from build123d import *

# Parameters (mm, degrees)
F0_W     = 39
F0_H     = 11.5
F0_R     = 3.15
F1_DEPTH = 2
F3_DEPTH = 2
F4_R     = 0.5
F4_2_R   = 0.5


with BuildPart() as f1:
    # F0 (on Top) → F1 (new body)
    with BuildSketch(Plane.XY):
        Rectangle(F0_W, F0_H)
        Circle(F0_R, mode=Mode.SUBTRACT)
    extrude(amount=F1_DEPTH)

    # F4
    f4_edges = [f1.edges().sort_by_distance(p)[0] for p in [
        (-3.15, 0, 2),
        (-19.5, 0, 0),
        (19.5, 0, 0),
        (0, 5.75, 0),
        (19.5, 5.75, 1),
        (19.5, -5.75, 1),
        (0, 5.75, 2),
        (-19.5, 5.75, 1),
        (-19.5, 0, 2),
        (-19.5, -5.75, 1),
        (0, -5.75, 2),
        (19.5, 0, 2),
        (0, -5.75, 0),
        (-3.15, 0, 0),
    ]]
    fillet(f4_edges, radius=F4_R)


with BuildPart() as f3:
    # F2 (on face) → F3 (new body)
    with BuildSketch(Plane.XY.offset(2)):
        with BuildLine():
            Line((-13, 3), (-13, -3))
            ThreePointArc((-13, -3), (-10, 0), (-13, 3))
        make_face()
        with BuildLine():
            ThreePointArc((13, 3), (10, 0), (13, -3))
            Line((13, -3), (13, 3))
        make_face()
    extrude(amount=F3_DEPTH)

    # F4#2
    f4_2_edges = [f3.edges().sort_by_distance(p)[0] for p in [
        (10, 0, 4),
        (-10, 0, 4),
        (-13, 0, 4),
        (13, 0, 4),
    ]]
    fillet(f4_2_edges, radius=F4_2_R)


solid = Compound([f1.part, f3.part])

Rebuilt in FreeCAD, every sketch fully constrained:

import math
import FreeCAD as App
import Part
import Sketcher

V = App.Vector


def edges_at(feature, points):
    """Names of the edges that pass closest to the given points."""
    edges = feature.Shape.Edges
    near = lambda p: min(range(len(edges)), key=lambda i: edges[i].distToShape(Part.Vertex(*p))[0])
    return sorted({f"Edge{near(p) + 1}" for p in points})

doc = App.newDocument("Part")
body = doc.addObject("PartDesign::Body", "Body")

sketch1 = doc.addObject("Sketcher::SketchObject", "Sketch")
body.addObject(sketch1)
sketch1.AttachmentSupport = (doc.XY_Plane, [""])
sketch1.MapMode = "FlatFace"
sketch1.addGeometry([
    Part.LineSegment(V(-19.5, 5.8, 0), V(-19.5, -5.8, 0)),
    Part.LineSegment(V(-19.5, -5.8, 0), V(19.5, -5.8, 0)),
    Part.LineSegment(V(19.5, -5.8, 0), V(19.5, 5.8, 0)),
    Part.LineSegment(V(19.5, 5.8, 0), V(-19.5, 5.8, 0)),
    Part.Circle(V(0, 0, 0), V(0, 0, 1), 3.1),
], False)
sketch1.addConstraint([
    Sketcher.Constraint("Coincident", 0, 2, 1, 1),
    Sketcher.Constraint("Coincident", 1, 2, 2, 1),
    Sketcher.Constraint("Coincident", 2, 2, 3, 1),
    Sketcher.Constraint("Coincident", 3, 2, 0, 1),
    Sketcher.Constraint("Vertical", 0),
    Sketcher.Constraint("Horizontal", 1),
    Sketcher.Constraint("Vertical", 2),
    Sketcher.Constraint("Horizontal", 3),
    Sketcher.Constraint("Coincident", 4, 3, -1, 1),
    Sketcher.Constraint("Symmetric", 0, 2, 2, 2, -1, 1),
    Sketcher.Constraint("Diameter", 4, 6.3),
    Sketcher.Constraint("DistanceX", 1, 1, 1, 2, 39.0),
    Sketcher.Constraint("DistanceY", 0, 2, 0, 1, 11.5),
])
pad1 = doc.addObject("PartDesign::Pad", "Pad")
body.addObject(pad1)
pad1.Profile = sketch1
pad1.Length = 2
doc.recompute()

fillet = doc.addObject("PartDesign::Fillet", "Fillet")
body.addObject(fillet)
fillet.Base = (pad1, ["Edge1"])
fillet.UseAllEdges = True
fillet.Radius = 0.5
body2 = doc.addObject("PartDesign::Body", "Body001")
body2.AllowCompound = True

sketch2 = doc.addObject("Sketcher::SketchObject", "Sketch001")
body2.addObject(sketch2)
sketch2.AttachmentSupport = (doc.getObject("XY_Plane001"), [""])
sketch2.MapMode = "FlatFace"
sketch2.AttachmentOffset = App.Placement(V(0, 0, 2), App.Rotation())
sketch2.addGeometry([
    Part.LineSegment(V(-13, 3, 0), V(-13, -3, 0)),
    Part.ArcOfCircle(Part.Circle(V(-13, 0, 0), V(0, 0, 1), 3), math.radians(-90), math.radians(90)),
    Part.ArcOfCircle(Part.Circle(V(13, 0, 0), V(0, 0, 1), 3), math.radians(90), math.radians(270)),
    Part.LineSegment(V(13, -3, 0), V(13, 3, 0)),
], False)
sketch2.addConstraint([
    Sketcher.Constraint("Coincident", 0, 1, 1, 2),
    Sketcher.Constraint("Coincident", 1, 1, 0, 2),
    Sketcher.Constraint("Coincident", 2, 1, 3, 2),
    Sketcher.Constraint("Coincident", 3, 1, 2, 2),
    Sketcher.Constraint("Vertical", 0),
    Sketcher.Constraint("Vertical", 3),
    Sketcher.Constraint("Equal", 1, 2),
    Sketcher.Constraint("Symmetric", 1, 3, 2, 3, -1, 1),
    Sketcher.Constraint("Symmetric", 0, 1, 2, 1, -2),
    Sketcher.Constraint("Vertical", 1, 3, 0, 1),
    Sketcher.Constraint("Radius", 1, 3.0),
    Sketcher.Constraint("DistanceX", 1, 3, -1, 1, 13.0),
])
pad2 = doc.addObject("PartDesign::Pad", "Pad001")
body2.addObject(pad2)
pad2.Profile = sketch2
pad2.Length = 2
doc.recompute()

fillet2 = doc.addObject("PartDesign::Fillet", "Fillet001")
body2.addObject(fillet2)
fillet2.Base = (pad2, edges_at(pad2, [
    (10, 0, 4),
    (-10, 0, 4),
    (-13, 0, 4),
    (13, 0, 4),
]))
fillet2.Radius = 0.5

doc.recompute()
